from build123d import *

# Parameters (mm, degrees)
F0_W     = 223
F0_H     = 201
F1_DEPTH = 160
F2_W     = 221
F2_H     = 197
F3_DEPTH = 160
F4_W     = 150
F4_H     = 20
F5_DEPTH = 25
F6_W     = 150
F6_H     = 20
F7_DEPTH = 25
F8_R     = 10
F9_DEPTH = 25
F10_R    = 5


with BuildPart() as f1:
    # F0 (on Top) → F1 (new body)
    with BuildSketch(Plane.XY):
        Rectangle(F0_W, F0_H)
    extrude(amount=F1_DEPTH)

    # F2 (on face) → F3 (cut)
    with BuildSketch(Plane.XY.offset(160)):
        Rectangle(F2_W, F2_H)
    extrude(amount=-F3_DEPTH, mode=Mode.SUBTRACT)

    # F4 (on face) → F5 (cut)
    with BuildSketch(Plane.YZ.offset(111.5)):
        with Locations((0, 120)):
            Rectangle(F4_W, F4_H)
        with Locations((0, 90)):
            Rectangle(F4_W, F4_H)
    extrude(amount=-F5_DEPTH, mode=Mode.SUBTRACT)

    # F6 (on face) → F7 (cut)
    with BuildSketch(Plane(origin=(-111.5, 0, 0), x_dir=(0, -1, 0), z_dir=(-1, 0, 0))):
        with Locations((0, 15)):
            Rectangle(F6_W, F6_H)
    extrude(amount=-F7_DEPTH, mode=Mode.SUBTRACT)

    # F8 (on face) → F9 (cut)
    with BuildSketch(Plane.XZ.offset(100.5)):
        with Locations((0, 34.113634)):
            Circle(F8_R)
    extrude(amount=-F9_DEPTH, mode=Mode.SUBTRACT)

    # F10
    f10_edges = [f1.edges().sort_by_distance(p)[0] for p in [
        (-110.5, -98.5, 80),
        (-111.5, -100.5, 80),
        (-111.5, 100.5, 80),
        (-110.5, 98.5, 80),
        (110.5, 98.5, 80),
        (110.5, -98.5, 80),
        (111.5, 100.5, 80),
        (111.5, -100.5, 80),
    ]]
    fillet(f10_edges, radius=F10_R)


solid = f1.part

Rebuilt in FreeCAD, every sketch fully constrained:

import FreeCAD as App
import Part
import Sketcher


def edges_at(feature, points):
    """Names of the edges that pass closest to the given points."""
    edges = feature.Shape.Edges
    near = lambda p: min(range(len(edges)), key=lambda i: edges[i].distToShape(Part.Vertex(*p))[0])
    return sorted({f"Edge{near(p) + 1}" for p in points})

doc = App.newDocument("Part")
body = doc.addObject("PartDesign::Body", "Body")

# Sketch on XY plane
sketch1 = body.newObject("Sketcher::SketchObject", "Sketch")
sketch1.AttachmentSupport = (doc.getObject("XY_Plane"), [""])
sketch1.MapMode = "FlatFace"
sketch1.addGeometry([
    Part.LineSegment(App.Vector(-112, 100, 0), App.Vector(-112, -100, 0)),
    Part.LineSegment(App.Vector(-112, -100, 0), App.Vector(112, -100, 0)),
    Part.LineSegment(App.Vector(112, -100, 0), App.Vector(112, 100, 0)),
    Part.LineSegment(App.Vector(112, 100, 0), App.Vector(-112, 100, 0)),
], False)
sketch1.addConstraint([
    Sketcher.Constraint("Coincident", 0, 2, 1, 1),
    Sketcher.Constraint("Coincident", 1, 2, 2, 1),
    Sketcher.Constraint("Coincident", 2, 2, 3, 1),
    Sketcher.Constraint("Coincident", 3, 2, 0, 1),
    Sketcher.Constraint("Vertical", 0),
    Sketcher.Constraint("Horizontal", 1),
    Sketcher.Constraint("Vertical", 2),
    Sketcher.Constraint("Horizontal", 3),
    Sketcher.Constraint("Symmetric", 0, 2, 2, 2, -1, 1),
    Sketcher.Constraint("DistanceX", 1, 1, 1, 2, 223.0),
    Sketcher.Constraint("DistanceY", 0, 2, 0, 1, 201.0),
])
pad1 = body.newObject("PartDesign::Pad", "Pad")
pad1.Profile = sketch1
pad1.Length = 160

# Sketch on XY plane
sketch2 = body.newObject("Sketcher::SketchObject", "Sketch001")
sketch2.AttachmentSupport = (doc.getObject("XY_Plane"), [""])
sketch2.MapMode = "FlatFace"
sketch2.AttachmentOffset = App.Placement(App.Vector(0, 0, 160), App.Rotation())
sketch2.addGeometry([
    Part.LineSegment(App.Vector(-110, 98, 0), App.Vector(-110, -98, 0)),
    Part.LineSegment(App.Vector(-110, -98, 0), App.Vector(110, -98, 0)),
    Part.LineSegment(App.Vector(110, -98, 0), App.Vector(110, 98, 0)),
    Part.LineSegment(App.Vector(110, 98, 0), App.Vector(-110, 98, 0)),
], False)
sketch2.addConstraint([
    Sketcher.Constraint("Coincident", 0, 2, 1, 1),
    Sketcher.Constraint("Coincident", 1, 2, 2, 1),
    Sketcher.Constraint("Coincident", 2, 2, 3, 1),
    Sketcher.Constraint("Coincident", 3, 2, 0, 1),
    Sketcher.Constraint("Vertical", 0),
    Sketcher.Constraint("Horizontal", 1),
    Sketcher.Constraint("Vertical", 2),
    Sketcher.Constraint("Horizontal", 3),
    Sketcher.Constraint("Symmetric", 0, 2, 2, 2, -1, 1),
    Sketcher.Constraint("DistanceX", 1, 1, 1, 2, 221.0),
    Sketcher.Constraint("DistanceY", 0, 2, 0, 1, 197.0),
])
pocket1 = body.newObject("PartDesign::Pocket", "Pocket")
pocket1.Profile = sketch2
pocket1.Length = 160

# Sketch on YZ plane
sketch3 = body.newObject("Sketcher::SketchObject", "Sketch002")
sketch3.AttachmentSupport = (doc.getObject("YZ_Plane"), [""])
sketch3.MapMode = "FlatFace"
sketch3.AttachmentOffset = App.Placement(App.Vector(0, 0, 111.5), App.Rotation())
sketch3.addGeometry([
    Part.LineSegment(App.Vector(-75, 130, 0), App.Vector(-75, 110, 0)),  # 0
    Part.LineSegment(App.Vector(-75, 110, 0), App.Vector(75, 110, 0)),  # 1
    Part.LineSegment(App.Vector(75, 110, 0), App.Vector(75, 130, 0)),  # 2
    Part.LineSegment(App.Vector(75, 130, 0), App.Vector(-75, 130, 0)),  # 3
    Part.LineSegment(App.Vector(-75, 100, 0), App.Vector(-75, 80, 0)),  # 4
    Part.LineSegment(App.Vector(-75, 80, 0), App.Vector(75, 80, 0)),  # 5
    Part.LineSegment(App.Vector(75, 80, 0), App.Vector(75, 100, 0)),  # 6
    Part.LineSegment(App.Vector(75, 100, 0), App.Vector(-75, 100, 0)),  # 7
], False)
sketch3.addConstraint([
    Sketcher.Constraint("Coincident", 0, 2, 1, 1),
    Sketcher.Constraint("Coincident", 1, 2, 2, 1),
    Sketcher.Constraint("Coincident", 2, 2, 3, 1),
    Sketcher.Constraint("Coincident", 3, 2, 0, 1),
    Sketcher.Constraint("Coincident", 4, 2, 5, 1),
    Sketcher.Constraint("Coincident", 5, 2, 6, 1),
    Sketcher.Constraint("Coincident", 6, 2, 7, 1),
    Sketcher.Constraint("Coincident", 7, 2, 4, 1),
    Sketcher.Constraint("Vertical", 0),
    Sketcher.Constraint("Horizontal", 1),
    Sketcher.Constraint("Vertical", 2),
    Sketcher.Constraint("Horizontal", 3),
    Sketcher.Constraint("Vertical", 4),
    Sketcher.Constraint("Horizontal", 5),
    Sketcher.Constraint("Vertical", 6),
    Sketcher.Constraint("Horizontal", 7),
    Sketcher.Constraint("Vertical", 3, 2, 4, 2),
    Sketcher.Constraint("Vertical", 2, 2, 5, 2),
    Sketcher.Constraint("Equal", 2, 4),
    Sketcher.Constraint("DistanceX", 1, 1, 1, 2, 150.0),
    Sketcher.Constraint("DistanceY", 0, 2, 0, 1, 20.0),
    Sketcher.Constraint("DistanceX", 0, 2, -1, 1, 75.0),
    Sketcher.Constraint("DistanceY", -1, 1, 0, 2, 110.0),
    Sketcher.Constraint("DistanceY", -1, 1, 4, 2, 80.0),
])
pocket2 = body.newObject("PartDesign::Pocket", "Pocket001")
pocket2.Profile = sketch3
pocket2.Length = 25

# Sketch on YZ plane
sketch4 = body.newObject("Sketcher::SketchObject", "Sketch003")
sketch4.AttachmentSupport = (doc.getObject("YZ_Plane"), [""])
sketch4.MapMode = "FlatFace"
sketch4.AttachmentOffset = App.Placement(App.Vector(0, 0, -111.5), App.Rotation())
sketch4.addGeometry([
    Part.LineSegment(App.Vector(75, 25, 0), App.Vector(75, 5, 0)),
    Part.LineSegment(App.Vector(75, 5, 0), App.Vector(-75, 5, 0)),
    Part.LineSegment(App.Vector(-75, 5, 0), App.Vector(-75, 25, 0)),
    Part.LineSegment(App.Vector(-75, 25, 0), App.Vector(75, 25, 0)),
], False)
sketch4.addConstraint([
    Sketcher.Constraint("Coincident", 0, 2, 1, 1),
    Sketcher.Constraint("Coincident", 1, 2, 2, 1),
    Sketcher.Constraint("Coincident", 2, 2, 3, 1),
    Sketcher.Constraint("Coincident", 3, 2, 0, 1),
    Sketcher.Constraint("Vertical", 0),
    Sketcher.Constraint("Horizontal", 1),
    Sketcher.Constraint("Vertical", 2),
    Sketcher.Constraint("Horizontal", 3),
    Sketcher.Constraint("DistanceX", 1, 2, 1, 1, 150.0),
    Sketcher.Constraint("DistanceY", 0, 2, 0, 1, 20.0),
    Sketcher.Constraint("DistanceX", -1, 1, 0, 2, 75.0),
    Sketcher.Constraint("DistanceY", -1, 1, 0, 2, 5.0),
])
pocket3 = body.newObject("PartDesign::Pocket", "Pocket002")
pocket3.Profile = sketch4
pocket3.Length = 25
pocket3.Reversed = True

# Sketch on XZ plane
sketch5 = body.newObject("Sketcher::SketchObject", "Sketch004")
sketch5.AttachmentSupport = (doc.getObject("XZ_Plane"), [""])
sketch5.MapMode = "FlatFace"
sketch5.AttachmentOffset = App.Placement(App.Vector(0, 0, 100.5), App.Rotation())
sketch5.addGeometry(Part.Circle(App.Vector(0, 34, 0), App.Vector(0, 0, 1), 10), False)
sketch5.addConstraint([
    Sketcher.Constraint("PointOnObject", 0, 3, -2),
    Sketcher.Constraint("Diameter", 0, 20.0),
    Sketcher.Constraint("DistanceY", -1, 1, 0, 3, 34.113634),
])
pocket4 = body.newObject("PartDesign::Pocket", "Pocket003")
pocket4.Profile = sketch5
pocket4.Length = 25
doc.recompute()

fillet = body.newObject("PartDesign::Fillet", "Fillet")
fillet.Base = (pocket4, edges_at(pocket4, [
    (-110.5, -98.5, 80),
    (-111.5, -100.5, 80),
    (-111.5, 100.5, 80),
    (-110.5, 98.5, 80),
    (110.5, 98.5, 80),
    (110.5, -98.5, 80),
    (111.5, 100.5, 80),
    (111.5, -100.5, 80),
]))
fillet.Radius = 5

doc.recompute()
